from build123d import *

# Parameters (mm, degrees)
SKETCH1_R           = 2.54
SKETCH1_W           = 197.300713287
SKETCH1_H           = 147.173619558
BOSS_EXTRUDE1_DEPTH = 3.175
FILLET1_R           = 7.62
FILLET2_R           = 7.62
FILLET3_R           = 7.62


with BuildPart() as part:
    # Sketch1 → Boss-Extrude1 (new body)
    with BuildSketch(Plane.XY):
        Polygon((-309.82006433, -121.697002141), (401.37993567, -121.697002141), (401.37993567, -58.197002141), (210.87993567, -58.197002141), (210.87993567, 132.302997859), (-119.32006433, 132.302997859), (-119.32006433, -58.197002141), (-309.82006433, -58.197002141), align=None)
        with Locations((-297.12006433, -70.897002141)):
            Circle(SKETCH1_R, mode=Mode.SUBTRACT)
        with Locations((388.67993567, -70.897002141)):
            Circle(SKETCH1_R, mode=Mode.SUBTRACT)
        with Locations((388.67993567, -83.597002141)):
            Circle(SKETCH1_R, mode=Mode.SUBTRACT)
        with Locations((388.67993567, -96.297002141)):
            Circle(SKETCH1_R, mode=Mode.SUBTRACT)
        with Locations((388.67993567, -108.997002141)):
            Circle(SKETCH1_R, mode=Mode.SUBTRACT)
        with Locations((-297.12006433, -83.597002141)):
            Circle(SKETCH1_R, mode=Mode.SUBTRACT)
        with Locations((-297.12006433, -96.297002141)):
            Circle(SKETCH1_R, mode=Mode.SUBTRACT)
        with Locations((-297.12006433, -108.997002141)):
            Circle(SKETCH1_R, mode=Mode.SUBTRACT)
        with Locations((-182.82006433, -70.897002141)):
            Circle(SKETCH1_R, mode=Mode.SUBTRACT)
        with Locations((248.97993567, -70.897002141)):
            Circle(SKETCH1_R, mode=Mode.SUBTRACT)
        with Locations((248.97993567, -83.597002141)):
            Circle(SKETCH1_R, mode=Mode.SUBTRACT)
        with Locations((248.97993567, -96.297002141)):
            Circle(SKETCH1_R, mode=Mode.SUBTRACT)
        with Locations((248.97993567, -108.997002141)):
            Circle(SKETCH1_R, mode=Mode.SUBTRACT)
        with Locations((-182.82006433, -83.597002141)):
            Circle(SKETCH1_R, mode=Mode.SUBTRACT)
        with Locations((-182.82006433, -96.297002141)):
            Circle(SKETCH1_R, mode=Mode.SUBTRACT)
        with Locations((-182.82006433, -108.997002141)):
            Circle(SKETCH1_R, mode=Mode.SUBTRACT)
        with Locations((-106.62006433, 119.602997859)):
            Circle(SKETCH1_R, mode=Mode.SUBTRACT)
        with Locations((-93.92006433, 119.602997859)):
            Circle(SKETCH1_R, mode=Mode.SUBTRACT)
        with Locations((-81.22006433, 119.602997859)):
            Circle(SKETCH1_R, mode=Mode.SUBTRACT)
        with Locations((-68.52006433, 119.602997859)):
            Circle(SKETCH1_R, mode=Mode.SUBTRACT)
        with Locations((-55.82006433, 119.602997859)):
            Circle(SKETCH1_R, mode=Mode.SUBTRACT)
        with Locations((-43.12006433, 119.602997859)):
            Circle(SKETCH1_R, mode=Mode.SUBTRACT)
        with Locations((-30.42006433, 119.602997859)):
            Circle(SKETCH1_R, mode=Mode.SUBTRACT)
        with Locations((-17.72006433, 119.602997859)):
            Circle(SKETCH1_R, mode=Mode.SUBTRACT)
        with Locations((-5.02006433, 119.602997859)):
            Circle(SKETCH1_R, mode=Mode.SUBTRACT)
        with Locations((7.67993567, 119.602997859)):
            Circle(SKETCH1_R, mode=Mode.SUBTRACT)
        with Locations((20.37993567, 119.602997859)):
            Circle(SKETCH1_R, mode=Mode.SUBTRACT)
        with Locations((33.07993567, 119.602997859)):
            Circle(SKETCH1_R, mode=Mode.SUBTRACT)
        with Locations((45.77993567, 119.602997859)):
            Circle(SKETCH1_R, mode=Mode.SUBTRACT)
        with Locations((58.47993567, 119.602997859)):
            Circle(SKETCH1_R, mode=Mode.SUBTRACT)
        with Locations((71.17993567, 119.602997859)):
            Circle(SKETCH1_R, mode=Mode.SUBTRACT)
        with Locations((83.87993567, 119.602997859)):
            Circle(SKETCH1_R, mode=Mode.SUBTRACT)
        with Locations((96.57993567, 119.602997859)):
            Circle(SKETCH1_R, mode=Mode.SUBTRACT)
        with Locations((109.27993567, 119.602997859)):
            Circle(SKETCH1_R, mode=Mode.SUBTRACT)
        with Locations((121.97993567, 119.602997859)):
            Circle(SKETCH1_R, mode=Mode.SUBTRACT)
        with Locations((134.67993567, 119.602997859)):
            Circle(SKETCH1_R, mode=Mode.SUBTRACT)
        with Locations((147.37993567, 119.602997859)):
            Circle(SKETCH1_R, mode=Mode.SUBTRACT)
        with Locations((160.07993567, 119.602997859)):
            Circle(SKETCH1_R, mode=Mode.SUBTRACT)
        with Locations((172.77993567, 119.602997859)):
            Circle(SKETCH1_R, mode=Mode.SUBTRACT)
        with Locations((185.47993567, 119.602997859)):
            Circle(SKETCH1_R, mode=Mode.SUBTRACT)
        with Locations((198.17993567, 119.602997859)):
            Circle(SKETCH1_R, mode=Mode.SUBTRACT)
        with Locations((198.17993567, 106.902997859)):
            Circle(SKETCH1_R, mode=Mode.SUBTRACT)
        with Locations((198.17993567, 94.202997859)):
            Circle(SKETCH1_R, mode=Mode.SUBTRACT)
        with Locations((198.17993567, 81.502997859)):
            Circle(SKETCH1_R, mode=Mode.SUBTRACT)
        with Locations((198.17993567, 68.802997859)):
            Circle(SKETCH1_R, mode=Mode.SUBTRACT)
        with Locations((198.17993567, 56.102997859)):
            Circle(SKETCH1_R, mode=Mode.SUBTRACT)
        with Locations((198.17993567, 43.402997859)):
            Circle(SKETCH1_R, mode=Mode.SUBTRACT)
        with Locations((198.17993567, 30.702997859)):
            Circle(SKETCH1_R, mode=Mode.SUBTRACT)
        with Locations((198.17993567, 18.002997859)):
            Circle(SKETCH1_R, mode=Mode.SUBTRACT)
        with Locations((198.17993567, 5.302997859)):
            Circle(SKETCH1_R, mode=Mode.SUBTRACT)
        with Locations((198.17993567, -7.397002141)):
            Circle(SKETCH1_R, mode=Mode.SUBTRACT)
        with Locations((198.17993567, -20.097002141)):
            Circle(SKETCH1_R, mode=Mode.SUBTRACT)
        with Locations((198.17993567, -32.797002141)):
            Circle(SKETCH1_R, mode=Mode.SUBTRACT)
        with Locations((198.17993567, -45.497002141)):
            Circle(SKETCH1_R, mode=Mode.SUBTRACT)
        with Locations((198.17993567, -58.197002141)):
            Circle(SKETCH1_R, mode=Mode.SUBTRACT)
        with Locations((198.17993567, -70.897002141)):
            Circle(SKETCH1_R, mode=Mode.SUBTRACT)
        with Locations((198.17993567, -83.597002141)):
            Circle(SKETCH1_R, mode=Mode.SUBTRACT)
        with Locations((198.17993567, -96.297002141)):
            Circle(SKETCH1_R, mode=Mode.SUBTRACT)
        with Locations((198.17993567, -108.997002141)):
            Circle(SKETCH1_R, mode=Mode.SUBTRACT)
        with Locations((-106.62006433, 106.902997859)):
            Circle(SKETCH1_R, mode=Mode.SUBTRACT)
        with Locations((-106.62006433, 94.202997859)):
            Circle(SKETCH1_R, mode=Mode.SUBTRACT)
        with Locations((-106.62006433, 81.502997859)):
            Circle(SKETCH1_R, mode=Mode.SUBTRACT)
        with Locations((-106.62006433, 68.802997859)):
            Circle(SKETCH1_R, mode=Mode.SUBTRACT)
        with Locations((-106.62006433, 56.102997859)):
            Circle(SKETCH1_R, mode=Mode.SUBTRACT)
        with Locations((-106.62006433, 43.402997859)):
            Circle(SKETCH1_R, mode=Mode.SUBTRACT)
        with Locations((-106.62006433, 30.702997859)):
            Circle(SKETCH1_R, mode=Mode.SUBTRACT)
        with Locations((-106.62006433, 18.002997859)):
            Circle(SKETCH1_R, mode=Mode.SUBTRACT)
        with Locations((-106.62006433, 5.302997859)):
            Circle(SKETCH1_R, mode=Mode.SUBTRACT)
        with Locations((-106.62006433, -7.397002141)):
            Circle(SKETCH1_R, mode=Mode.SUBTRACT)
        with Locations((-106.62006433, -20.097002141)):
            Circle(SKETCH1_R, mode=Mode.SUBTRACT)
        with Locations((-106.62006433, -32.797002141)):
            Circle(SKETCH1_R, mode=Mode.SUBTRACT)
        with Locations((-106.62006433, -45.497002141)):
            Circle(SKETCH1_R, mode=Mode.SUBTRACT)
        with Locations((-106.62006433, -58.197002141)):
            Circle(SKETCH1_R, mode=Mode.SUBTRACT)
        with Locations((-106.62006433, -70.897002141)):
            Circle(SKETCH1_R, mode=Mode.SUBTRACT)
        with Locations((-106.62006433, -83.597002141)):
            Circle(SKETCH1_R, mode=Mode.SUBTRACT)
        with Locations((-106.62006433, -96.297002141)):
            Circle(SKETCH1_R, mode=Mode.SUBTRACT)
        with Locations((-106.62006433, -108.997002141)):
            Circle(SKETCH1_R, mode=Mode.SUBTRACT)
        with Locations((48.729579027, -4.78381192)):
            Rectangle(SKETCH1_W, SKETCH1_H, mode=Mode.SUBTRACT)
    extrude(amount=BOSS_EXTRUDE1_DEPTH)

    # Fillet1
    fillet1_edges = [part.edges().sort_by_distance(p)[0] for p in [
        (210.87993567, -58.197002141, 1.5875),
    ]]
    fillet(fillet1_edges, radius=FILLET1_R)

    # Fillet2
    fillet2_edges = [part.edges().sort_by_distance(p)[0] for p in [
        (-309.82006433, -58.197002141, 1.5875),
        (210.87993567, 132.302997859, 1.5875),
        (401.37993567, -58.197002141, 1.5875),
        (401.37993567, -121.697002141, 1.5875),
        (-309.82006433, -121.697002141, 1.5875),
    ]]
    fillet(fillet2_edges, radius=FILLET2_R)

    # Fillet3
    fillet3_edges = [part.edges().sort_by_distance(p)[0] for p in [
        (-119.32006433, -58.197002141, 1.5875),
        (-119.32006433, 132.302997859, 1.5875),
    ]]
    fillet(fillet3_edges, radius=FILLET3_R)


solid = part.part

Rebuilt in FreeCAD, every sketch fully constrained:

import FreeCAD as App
import Part
import Sketcher
from FreeCAD import Vector
Q = App.Units.Quantity


def edges_at(feature, points):
    """Names of the edges that pass closest to the given points."""
    edges = feature.Shape.Edges
    near = lambda p: min(range(len(edges)), key=lambda i: edges[i].distToShape(Part.Vertex(*p))[0])
    return sorted({f"Edge{near(p) + 1}" for p in points})

doc = App.newDocument("Part")
body = doc.addObject("PartDesign::Body", "Body")

sketch1 = body.newObject("Sketcher::SketchObject", "Sketch")
sketch1.AttachmentSupport = (doc.getObject("XY_Plane"), [""])
sketch1.MapMode = "FlatFace"
sketch1.addGeometry([
    Part.LineSegment(Vector(-309.820064, -121.697002, 0), Vector(401.379936, -121.697002, 0)),
    Part.LineSegment(Vector(401.379936, -121.697002, 0), Vector(401.379936, -58.197002, 0)),
    Part.LineSegment(Vector(401.379936, -58.197002, 0), Vector(210.879936, -58.197002, 0)),
    Part.LineSegment(Vector(210.879936, -58.197002, 0), Vector(210.879936, 132.302998, 0)),
    Part.LineSegment(Vector(210.879936, 132.302998, 0), Vector(-119.320064, 132.302998, 0)),
    Part.LineSegment(Vector(-119.320064, 132.302998, 0), Vector(-119.320064, -58.197002, 0)),
    Part.LineSegment(Vector(-119.320064, -58.197002, 0), Vector(-309.820064, -58.197002, 0)),
    Part.LineSegment(Vector(-309.820064, -58.197002, 0), Vector(-309.820064, -121.697002, 0)),
    Part.Circle(Vector(-297.120064, -108.997002, 0), Vector(0, 0, 1), 2.54),
    Part.Circle(Vector(-297.120064, -96.297002, 0), Vector(0, 0, 1), 2.54),
    Part.Circle(Vector(-297.120064, -83.597002, 0), Vector(0, 0, 1), 2.54),
    Part.Circle(Vector(-182.820064, -108.997002, 0), Vector(0, 0, 1), 2.54),
    Part.Circle(Vector(-182.820064, -96.297002, 0), Vector(0, 0, 1), 2.54),
    Part.Circle(Vector(-182.820064, -83.597002, 0), Vector(0, 0, 1), 2.54),
    Part.Circle(Vector(-297.120064, -70.897002, 0), Vector(0, 0, 1), 2.54),
    Part.Circle(Vector(-182.820064, -70.897002, 0), Vector(0, 0, 1), 2.54),
    Part.Circle(Vector(-106.620064, -108.997002, 0), Vector(0, 0, 1), 2.54),
    Part.Circle(Vector(-106.620064, -96.297002, 0), Vector(0, 0, 1), 2.54),
    Part.Circle(Vector(-106.620064, -83.597002, 0), Vector(0, 0, 1), 2.54),
    Part.Circle(Vector(-106.620064, -70.897002, 0), Vector(0, 0, 1), 2.54),
    Part.Circle(Vector(-106.620064, -58.197002, 0), Vector(0, 0, 1), 2.54),
    Part.Circle(Vector(-106.620064, -45.497002, 0), Vector(0, 0, 1), 2.54),
    Part.Circle(Vector(-106.620064, -32.797002, 0), Vector(0, 0, 1), 2.54),
    Part.Circle(Vector(-106.620064, -20.097002, 0), Vector(0, 0, 1), 2.54),
    Part.Circle(Vector(-106.620064, -7.397002, 0), Vector(0, 0, 1), 2.54),
    Part.Circle(Vector(198.179936, -108.997002, 0), Vector(0, 0, 1), 2.54),
    Part.Circle(Vector(198.179936, -96.297002, 0), Vector(0, 0, 1), 2.54),
    Part.Circle(Vector(198.179936, -83.597002, 0), Vector(0, 0, 1), 2.54),
    Part.Circle(Vector(198.179936, -70.897002, 0), Vector(0, 0, 1), 2.54),
    Part.Circle(Vector(198.179936, -58.197002, 0), Vector(0, 0, 1), 2.54),
    Part.Circle(Vector(248.979936, -108.997002, 0), Vector(0, 0, 1), 2.54),
    Part.Circle(Vector(248.979936, -96.297002, 0), Vector(0, 0, 1), 2.54),
    Part.Circle(Vector(248.979936, -83.597002, 0), Vector(0, 0, 1), 2.54),
    Part.Circle(Vector(388.679936, -108.997002, 0), Vector(0, 0, 1), 2.54),
    Part.Circle(Vector(388.679936, -96.297002, 0), Vector(0, 0, 1), 2.54),
    Part.Circle(Vector(388.679936, -83.597002, 0), Vector(0, 0, 1), 2.54),
    Part.Circle(Vector(248.979936, -70.897002, 0), Vector(0, 0, 1), 2.54),
    Part.Circle(Vector(388.679936, -70.897002, 0), Vector(0, 0, 1), 2.54),
    Part.Circle(Vector(198.179936, -45.497002, 0), Vector(0, 0, 1), 2.54),
    Part.Circle(Vector(198.179936, -32.797002, 0), Vector(0, 0, 1), 2.54),
    Part.LineSegment(Vector(147.379936, -78.370622, 0), Vector(-49.920778, -78.370622, 0)),
    Part.LineSegment(Vector(-49.920778, -78.370622, 0), Vector(-49.920778, 68.802998, 0)),
    Part.LineSegment(Vector(-49.920778, 68.802998, 0), Vector(147.379936, 68.802998, 0)),
    Part.LineSegment(Vector(147.379936, 68.802998, 0), Vector(147.379936, -78.370622, 0)),
    Part.Circle(Vector(198.179936, -20.097002, 0), Vector(0, 0, 1), 2.54),
    Part.Circle(Vector(198.179936, -7.397002, 0), Vector(0, 0, 1), 2.54),
    Part.Circle(Vector(-106.620064, 5.302998, 0), Vector(0, 0, 1), 2.54),
    Part.Circle(Vector(-106.620064, 18.002998, 0), Vector(0, 0, 1), 2.54),
    Part.Circle(Vector(-106.620064, 30.702998, 0), Vector(0, 0, 1), 2.54),
    Part.Circle(Vector(-106.620064, 43.402998, 0), Vector(0, 0, 1), 2.54),
    Part.Circle(Vector(-106.620064, 56.102998, 0), Vector(0, 0, 1), 2.54),
    Part.Circle(Vector(-106.620064, 68.802998, 0), Vector(0, 0, 1), 2.54),
    Part.Circle(Vector(-106.620064, 81.502998, 0), Vector(0, 0, 1), 2.54),
    Part.Circle(Vector(-106.620064, 94.202998, 0), Vector(0, 0, 1), 2.54),
    Part.Circle(Vector(-106.620064, 106.902998, 0), Vector(0, 0, 1), 2.54),
    Part.Circle(Vector(-106.620064, 119.602998, 0), Vector(0, 0, 1), 2.54),
    Part.Circle(Vector(-93.920064, 119.602998, 0), Vector(0, 0, 1), 2.54),
    Part.Circle(Vector(-81.220064, 119.602998, 0), Vector(0, 0, 1), 2.54),
    Part.Circle(Vector(-68.520064, 119.602998, 0), Vector(0, 0, 1), 2.54),
    Part.Circle(Vector(-55.820064, 119.602998, 0), Vector(0, 0, 1), 2.54),
    Part.Circle(Vector(-43.120064, 119.602998, 0), Vector(0, 0, 1), 2.54),
    Part.Circle(Vector(-30.420064, 119.602998, 0), Vector(0, 0, 1), 2.54),
    Part.Circle(Vector(-17.720064, 119.602998, 0), Vector(0, 0, 1), 2.54),
    Part.Circle(Vector(-5.020064, 119.602998, 0), Vector(0, 0, 1), 2.54),
    Part.Circle(Vector(7.679936, 119.602998, 0), Vector(0, 0, 1), 2.54),
    Part.Circle(Vector(20.379936, 119.602998, 0), Vector(0, 0, 1), 2.54),
    Part.Circle(Vector(33.079936, 119.602998, 0), Vector(0, 0, 1), 2.54),
    Part.Circle(Vector(45.779936, 119.602998, 0), Vector(0, 0, 1), 2.54),
    Part.Circle(Vector(198.179936, 5.302998, 0), Vector(0, 0, 1), 2.54),
    Part.Circle(Vector(198.179936, 18.002998, 0), Vector(0, 0, 1), 2.54),
    Part.Circle(Vector(198.179936, 30.702998, 0), Vector(0, 0, 1), 2.54),
    Part.Circle(Vector(198.179936, 43.402998, 0), Vector(0, 0, 1), 2.54),
    Part.Circle(Vector(198.179936, 56.102998, 0), Vector(0, 0, 1), 2.54),
    Part.Circle(Vector(198.179936, 68.802998, 0), Vector(0, 0, 1), 2.54),
    Part.Circle(Vector(198.179936, 81.502998, 0), Vector(0, 0, 1), 2.54),
    Part.Circle(Vector(58.479936, 119.602998, 0), Vector(0, 0, 1), 2.54),
    Part.Circle(Vector(71.179936, 119.602998, 0), Vector(0, 0, 1), 2.54),
    Part.Circle(Vector(83.879936, 119.602998, 0), Vector(0, 0, 1), 2.54),
    Part.Circle(Vector(96.579936, 119.602998, 0), Vector(0, 0, 1), 2.54),
    Part.Circle(Vector(109.279936, 119.602998, 0), Vector(0, 0, 1), 2.54),
    Part.Circle(Vector(121.979936, 119.602998, 0), Vector(0, 0, 1), 2.54),
    Part.Circle(Vector(198.179936, 94.202998, 0), Vector(0, 0, 1), 2.54),
    Part.Circle(Vector(198.179936, 106.902998, 0), Vector(0, 0, 1), 2.54),
    Part.Circle(Vector(134.679936, 119.602998, 0), Vector(0, 0, 1), 2.54),
    Part.Circle(Vector(147.379936, 119.602998, 0), Vector(0, 0, 1), 2.54),
    Part.Circle(Vector(160.079936, 119.602998, 0), Vector(0, 0, 1), 2.54),
    Part.Circle(Vector(172.779936, 119.602998, 0), Vector(0, 0, 1), 2.54),
    Part.Circle(Vector(185.479936, 119.602998, 0), Vector(0, 0, 1), 2.54),
    Part.Circle(Vector(198.179936, 119.602998, 0), Vector(0, 0, 1), 2.54),
], False)
sketch1.addConstraint([
    Sketcher.Constraint("Coincident", 0, 2, 1, 1),
    Sketcher.Constraint("Coincident", 1, 2, 2, 1),
    Sketcher.Constraint("Coincident", 2, 2, 3, 1),
    Sketcher.Constraint("Coincident", 3, 2, 4, 1),
    Sketcher.Constraint("Coincident", 4, 2, 5, 1),
    Sketcher.Constraint("Coincident", 5, 2, 6, 1),
    Sketcher.Constraint("Coincident", 6, 2, 7, 1),
    Sketcher.Constraint("Coincident", 7, 2, 0, 1),
    Sketcher.Constraint("Coincident", 40, 2, 41, 1),
    Sketcher.Constraint("Coincident", 41, 2, 42, 1),
    Sketcher.Constraint("Coincident", 42, 2, 43, 1),
    Sketcher.Constraint("Coincident", 43, 2, 40, 1),
    Sketcher.Constraint("Horizontal", 0),
    Sketcher.Constraint("Vertical", 1),
    Sketcher.Constraint("Horizontal", 2),
    Sketcher.Constraint("Vertical", 3),
    Sketcher.Constraint("Horizontal", 4),
    Sketcher.Constraint("Vertical", 5),
    Sketcher.Constraint("Horizontal", 6),
    Sketcher.Constraint("Vertical", 7),
    Sketcher.Constraint("Horizontal", 40),
    Sketcher.Constraint("Vertical", 41),
    Sketcher.Constraint("Horizontal", 42),
    Sketcher.Constraint("Vertical", 43),
    Sketcher.Constraint("Equal", 8, 9),
    Sketcher.Constraint("Equal", 9, 10),
    Sketcher.Constraint("Equal", 10, 11),
    Sketcher.Constraint("Equal", 11, 12),
    Sketcher.Constraint("Equal", 12, 13),
    Sketcher.Constraint("Equal", 13, 14),
    Sketcher.Constraint("Equal", 14, 15),
    Sketcher.Constraint("Equal", 15, 16),
    Sketcher.Constraint("Equal", 16, 17),
    Sketcher.Constraint("Equal", 17, 18),
    Sketcher.Constraint("Equal", 18, 19),
    Sketcher.Constraint("Equal", 19, 20),
    Sketcher.Constraint("Equal", 20, 21),
    Sketcher.Constraint("Equal", 21, 22),
    Sketcher.Constraint("Equal", 22, 23),
    Sketcher.Constraint("Equal", 23, 24),
    Sketcher.Constraint("Equal", 24, 25),
    Sketcher.Constraint("Equal", 25, 26),
    Sketcher.Constraint("Equal", 26, 27),
    Sketcher.Constraint("Equal", 27, 28),
    Sketcher.Constraint("Equal", 28, 29),
    Sketcher.Constraint("Equal", 29, 30),
    Sketcher.Constraint("Equal", 30, 31),
    Sketcher.Constraint("Equal", 31, 32),
    Sketcher.Constraint("Equal", 32, 33),
    Sketcher.Constraint("Equal", 33, 34),
    Sketcher.Constraint("Equal", 34, 35),
    Sketcher.Constraint("Equal", 35, 36),
    Sketcher.Constraint("Equal", 36, 37),
    Sketcher.Constraint("Equal", 37, 38),
    Sketcher.Constraint("Equal", 38, 39),
    Sketcher.Constraint("Equal", 39, 44),
    Sketcher.Constraint("Equal", 44, 45),
    Sketcher.Constraint("Equal", 45, 46),
    Sketcher.Constraint("Equal", 46, 47),
    Sketcher.Constraint("Equal", 47, 48),
    Sketcher.Constraint("Equal", 48, 49),
    Sketcher.Constraint("Equal", 49, 50),
    Sketcher.Constraint("Equal", 50, 51),
    Sketcher.Constraint("Equal", 51, 52),
    Sketcher.Constraint("Equal", 52, 53),
    Sketcher.Constraint("Equal", 53, 54),
    Sketcher.Constraint("Equal", 54, 55),
    Sketcher.Constraint("Equal", 55, 56),
    Sketcher.Constraint("Equal", 56, 57),
    Sketcher.Constraint("Equal", 57, 58),
    Sketcher.Constraint("Equal", 58, 59),
    Sketcher.Constraint("Equal", 59, 60),
    Sketcher.Constraint("Equal", 60, 61),
    Sketcher.Constraint("Equal", 61, 62),
    Sketcher.Constraint("Equal", 62, 63),
    Sketcher.Constraint("Equal", 63, 64),
    Sketcher.Constraint("Equal", 64, 65),
    Sketcher.Constraint("Equal", 65, 66),
    Sketcher.Constraint("Equal", 66, 67),
    Sketcher.Constraint("Equal", 67, 68),
    Sketcher.Constraint("Equal", 68, 69),
    Sketcher.Constraint("Equal", 69, 70),
    Sketcher.Constraint("Equal", 70, 71),
    Sketcher.Constraint("Equal", 71, 72),
    Sketcher.Constraint("Equal", 72, 73),
    Sketcher.Constraint("Equal", 73, 74),
    Sketcher.Constraint("Equal", 74, 75),
    Sketcher.Constraint("Equal", 75, 76),
    Sketcher.Constraint("Equal", 76, 77),
    Sketcher.Constraint("Equal", 77, 78),
    Sketcher.Constraint("Equal", 78, 79),
    Sketcher.Constraint("Equal", 79, 80),
    Sketcher.Constraint("Equal", 80, 81),
    Sketcher.Constraint("Equal", 81, 82),
    Sketcher.Constraint("Equal", 82, 83),
    Sketcher.Constraint("Equal", 83, 84),
    Sketcher.Constraint("Equal", 84, 85),
    Sketcher.Constraint("Equal", 85, 86),
    Sketcher.Constraint("Equal", 86, 87),
    Sketcher.Constraint("Equal", 87, 88),
    Sketcher.Constraint("Horizontal", 8, 3, 11, 3),
    Sketcher.Constraint("Horizontal", 9, 3, 12, 3),
    Sketcher.Constraint("Horizontal", 10, 3, 13, 3),
    Sketcher.Constraint("Horizontal", 14, 3, 15, 3),
    Sketcher.Constraint("Horizontal", 11, 3, 16, 3),
    Sketcher.Constraint("Horizontal", 12, 3, 17, 3),
    Sketcher.Constraint("Horizontal", 13, 3, 18, 3),
    Sketcher.Constraint("Horizontal", 15, 3, 19, 3),
    Sketcher.Constraint("Horizontal", 16, 3, 25, 3),
    Sketcher.Constraint("Horizontal", 17, 3, 26, 3),
    Sketcher.Constraint("Horizontal", 18, 3, 27, 3),
    Sketcher.Constraint("Horizontal", 19, 3, 28, 3),
    Sketcher.Constraint("Horizontal", 20, 3, 29, 3),
    Sketcher.Constraint("Horizontal", 25, 3, 30, 3),
    Sketcher.Constraint("Horizontal", 26, 3, 31, 3),
    Sketcher.Constraint("Horizontal", 27, 3, 32, 3),
    Sketcher.Constraint("Horizontal", 30, 3, 33, 3),
    Sketcher.Constraint("Horizontal", 31, 3, 34, 3),
    Sketcher.Constraint("Horizontal", 32, 3, 35, 3),
    Sketcher.Constraint("Horizontal", 28, 3, 36, 3),
    Sketcher.Constraint("Horizontal", 36, 3, 37, 3),
    Sketcher.Constraint("Horizontal", 21, 3, 38, 3),
    Sketcher.Constraint("Horizontal", 22, 3, 39, 3),
    Sketcher.Constraint("Horizontal", 23, 3, 44, 3),
    Sketcher.Constraint("Horizontal", 24, 3, 45, 3),
    Sketcher.Constraint("Horizontal", 55, 3, 56, 3),
    Sketcher.Constraint("Horizontal", 56, 3, 57, 3),
    Sketcher.Constraint("Horizontal", 57, 3, 58, 3),
    Sketcher.Constraint("Horizontal", 58, 3, 59, 3),
    Sketcher.Constraint("Horizontal", 59, 3, 60, 3),
    Sketcher.Constraint("Horizontal", 60, 3, 61, 3),
    Sketcher.Constraint("Horizontal", 61, 3, 62, 3),
    Sketcher.Constraint("Horizontal", 62, 3, 63, 3),
    Sketcher.Constraint("Horizontal", 63, 3, 64, 3),
    Sketcher.Constraint("Horizontal", 64, 3, 65, 3),
    Sketcher.Constraint("Horizontal", 65, 3, 66, 3),
    Sketcher.Constraint("Horizontal", 66, 3, 67, 3),
    Sketcher.Constraint("Horizontal", 46, 3, 68, 3),
    Sketcher.Constraint("Horizontal", 47, 3, 69, 3),
    Sketcher.Constraint("Horizontal", 48, 3, 70, 3),
    Sketcher.Constraint("Horizontal", 49, 3, 71, 3),
    Sketcher.Constraint("Horizontal", 50, 3, 72, 3),
    Sketcher.Constraint("Horizontal", 51, 3, 73, 3),
    Sketcher.Constraint("Horizontal", 52, 3, 74, 3),
    Sketcher.Constraint("Horizontal", 67, 3, 75, 3),
    Sketcher.Constraint("Horizontal", 75, 3, 76, 3),
    Sketcher.Constraint("Horizontal", 76, 3, 77, 3),
    Sketcher.Constraint("Horizontal", 77, 3, 78, 3),
    Sketcher.Constraint("Horizontal", 78, 3, 79, 3),
    Sketcher.Constraint("Horizontal", 79, 3, 80, 3),
    Sketcher.Constraint("Horizontal", 53, 3, 81, 3),
    Sketcher.Constraint("Horizontal", 54, 3, 82, 3),
    Sketcher.Constraint("Horizontal", 80, 3, 83, 3),
    Sketcher.Constraint("Horizontal", 83, 3, 84, 3),
    Sketcher.Constraint("Horizontal", 84, 3, 85, 3),
    Sketcher.Constraint("Horizontal", 85, 3, 86, 3),
    Sketcher.Constraint("Horizontal", 86, 3, 87, 3),
    Sketcher.Constraint("Horizontal", 87, 3, 88, 3),
    Sketcher.Constraint("Horizontal", 29, 3, 1, 2),
    Sketcher.Constraint("Horizontal", 2, 2, 5, 2),
    Sketcher.Constraint("Horizontal", 73, 3, 41, 2),
    Sketcher.Constraint("Vertical", 8, 3, 9, 3),
    Sketcher.Constraint("Vertical", 9, 3, 10, 3),
    Sketcher.Constraint("Vertical", 11, 3, 12, 3),
    Sketcher.Constraint("Vertical", 12, 3, 13, 3),
    Sketcher.Constraint("Vertical", 10, 3, 14, 3),
    Sketcher.Constraint("Vertical", 13, 3, 15, 3),
    Sketcher.Constraint("Vertical", 16, 3, 17, 3),
    Sketcher.Constraint("Vertical", 17, 3, 18, 3),
    Sketcher.Constraint("Vertical", 18, 3, 19, 3),
    Sketcher.Constraint("Vertical", 19, 3, 20, 3),
    Sketcher.Constraint("Vertical", 20, 3, 21, 3),
    Sketcher.Constraint("Vertical", 21, 3, 22, 3),
    Sketcher.Constraint("Vertical", 22, 3, 23, 3),
    Sketcher.Constraint("Vertical", 23, 3, 24, 3),
    Sketcher.Constraint("Vertical", 25, 3, 26, 3),
    Sketcher.Constraint("Vertical", 26, 3, 27, 3),
    Sketcher.Constraint("Vertical", 27, 3, 28, 3),
    Sketcher.Constraint("Vertical", 28, 3, 29, 3),
    Sketcher.Constraint("Vertical", 30, 3, 31, 3),
    Sketcher.Constraint("Vertical", 31, 3, 32, 3),
    Sketcher.Constraint("Vertical", 33, 3, 34, 3),
    Sketcher.Constraint("Vertical", 34, 3, 35, 3),
    Sketcher.Constraint("Vertical", 32, 3, 36, 3),
    Sketcher.Constraint("Vertical", 35, 3, 37, 3),
    Sketcher.Constraint("Vertical", 29, 3, 38, 3),
    Sketcher.Constraint("Vertical", 38, 3, 39, 3),
    Sketcher.Constraint("Vertical", 39, 3, 44, 3),
    Sketcher.Constraint("Vertical", 44, 3, 45, 3),
    Sketcher.Constraint("Vertical", 24, 3, 46, 3),
    Sketcher.Constraint("Vertical", 46, 3, 47, 3),
    Sketcher.Constraint("Vertical", 47, 3, 48, 3),
    Sketcher.Constraint("Vertical", 48, 3, 49, 3),
    Sketcher.Constraint("Vertical", 49, 3, 50, 3),
    Sketcher.Constraint("Vertical", 50, 3, 51, 3),
    Sketcher.Constraint("Vertical", 51, 3, 52, 3),
    Sketcher.Constraint("Vertical", 52, 3, 53, 3),
    Sketcher.Constraint("Vertical", 53, 3, 54, 3),
    Sketcher.Constraint("Vertical", 54, 3, 55, 3),
    Sketcher.Constraint("Vertical", 45, 3, 68, 3),
    Sketcher.Constraint("Vertical", 68, 3, 69, 3),
    Sketcher.Constraint("Vertical", 69, 3, 70, 3),
    Sketcher.Constraint("Vertical", 70, 3, 71, 3),
    Sketcher.Constraint("Vertical", 71, 3, 72, 3),
    Sketcher.Constraint("Vertical", 72, 3, 73, 3),
    Sketcher.Constraint("Vertical", 73, 3, 74, 3),
    Sketcher.Constraint("Vertical", 74, 3, 81, 3),
    Sketcher.Constraint("Vertical", 81, 3, 82, 3),
    Sketcher.Constraint("Vertical", 82, 3, 88, 3),
    Sketcher.Constraint("Vertical", 84, 3, 42, 2),
    Sketcher.Constraint("Equal", 2, 6),
    Sketcher.Constraint("Equal", 6, 3),
    Sketcher.Constraint("Diameter", 8, Q("0.2 in")),
    Sketcher.Constraint("DistanceX", 0, 1, 0, 2, Q("28 in")),
    Sketcher.Constraint("DistanceX", 4, 2, 4, 1, Q("13 in")),
    Sketcher.Constraint("DistanceY", 1, 1, 1, 2, Q("2.5 in")),
    Sketcher.Constraint("DistanceY", 41, 1, 41, 2, 147.17362),
    Sketcher.Constraint("DistanceX", 40, 2, 40, 1, 197.300713),
    Sketcher.Constraint("DistanceY", 40, 2, -1, 1, 78.370622),
    Sketcher.Constraint("DistanceX", 8, 3, -1, 1, 297.120064),
    Sketcher.Constraint("DistanceY", 8, 3, -1, 1, 108.997002),
    Sketcher.Constraint("DistanceY", 9, 3, -1, 1, 96.297002),
    Sketcher.Constraint("DistanceY", 10, 3, -1, 1, 83.597002),
    Sketcher.Constraint("DistanceX", 11, 3, -1, 1, 182.820064),
    Sketcher.Constraint("DistanceY", 14, 3, -1, 1, 70.897002),
    Sketcher.Constraint("DistanceX", 16, 3, -1, 1, 106.620064),
    Sketcher.Constraint("DistanceY", 20, 3, -1, 1, 58.197002),
    Sketcher.Constraint("DistanceY", 21, 3, -1, 1, 45.497002),
    Sketcher.Constraint("DistanceY", 22, 3, -1, 1, 32.797002),
    Sketcher.Constraint("DistanceY", 23, 3, -1, 1, 20.097002),
    Sketcher.Constraint("DistanceY", 24, 3, -1, 1, 7.397002),
    Sketcher.Constraint("DistanceX", -1, 1, 25, 3, 198.179936),
    Sketcher.Constraint("DistanceX", -1, 1, 30, 3, 248.979936),
    Sketcher.Constraint("DistanceX", -1, 1, 33, 3, 388.679936),
    Sketcher.Constraint("DistanceY", -1, 1, 46, 3, 5.302998),
    Sketcher.Constraint("DistanceY", -1, 1, 47, 3, 18.002998),
    Sketcher.Constraint("DistanceY", -1, 1, 48, 3, 30.702998),
    Sketcher.Constraint("DistanceY", -1, 1, 49, 3, 43.402998),
    Sketcher.Constraint("DistanceY", -1, 1, 50, 3, 56.102998),
    Sketcher.Constraint("DistanceY", -1, 1, 52, 3, 81.502998),
    Sketcher.Constraint("DistanceY", -1, 1, 53, 3, 94.202998),
    Sketcher.Constraint("DistanceY", -1, 1, 54, 3, 106.902998),
    Sketcher.Constraint("DistanceY", -1, 1, 55, 3, 119.602998),
    Sketcher.Constraint("DistanceX", 56, 3, -1, 1, 93.920064),
    Sketcher.Constraint("DistanceX", 57, 3, -1, 1, 81.220064),
    Sketcher.Constraint("DistanceX", 58, 3, -1, 1, 68.520064),
    Sketcher.Constraint("DistanceX", 59, 3, -1, 1, 55.820064),
    Sketcher.Constraint("DistanceX", 60, 3, -1, 1, 43.120064),
    Sketcher.Constraint("DistanceX", 61, 3, -1, 1, 30.420064),
    Sketcher.Constraint("DistanceX", 62, 3, -1, 1, 17.720064),
    Sketcher.Constraint("DistanceX", 63, 3, -1, 1, 5.020064),
    Sketcher.Constraint("DistanceX", -1, 1, 64, 3, 7.679936),
    Sketcher.Constraint("DistanceX", -1, 1, 65, 3, 20.379936),
    Sketcher.Constraint("DistanceX", -1, 1, 66, 3, 33.079936),
    Sketcher.Constraint("DistanceX", -1, 1, 67, 3, 45.779936),
    Sketcher.Constraint("DistanceX", -1, 1, 75, 3, 58.479936),
    Sketcher.Constraint("DistanceX", -1, 1, 76, 3, 71.179936),
    Sketcher.Constraint("DistanceX", -1, 1, 77, 3, 83.879936),
    Sketcher.Constraint("DistanceX", -1, 1, 78, 3, 96.579936),
    Sketcher.Constraint("DistanceX", -1, 1, 79, 3, 109.279936),
    Sketcher.Constraint("DistanceX", -1, 1, 80, 3, 121.979936),
    Sketcher.Constraint("DistanceX", -1, 1, 83, 3, 134.679936),
    Sketcher.Constraint("DistanceX", -1, 1, 84, 3, 147.379936),
    Sketcher.Constraint("DistanceX", -1, 1, 85, 3, 160.079936),
    Sketcher.Constraint("DistanceX", -1, 1, 86, 3, 172.779936),
    Sketcher.Constraint("DistanceX", -1, 1, 87, 3, 185.479936),
    Sketcher.Constraint("DistanceX", -1, 1, 0, 2, 401.379936),
])
pad1 = body.newObject("PartDesign::Pad", "Pad")
pad1.Profile = sketch1
pad1.Length = Q("0.125 in")
doc.recompute()

fillet = body.newObject("PartDesign::Fillet", "Fillet")
fillet.Base = (pad1, edges_at(pad1, [(210.88, -58.197, 1.587)]))
fillet.Radius = Q("0.3 in")
doc.recompute()

fillet2 = body.newObject("PartDesign::Fillet", "Fillet001")
fillet2.Base = (fillet, edges_at(fillet, [
    (-309.82, -58.197, 1.587),
    (210.88, 132.303, 1.587),
    (401.38, -58.197, 1.587),
    (401.38, -121.697, 1.587),
    (-309.82, -121.697, 1.587),
]))
fillet2.Radius = Q("0.3 in")
doc.recompute()

fillet3 = body.newObject("PartDesign::Fillet", "Fillet002")
fillet3.Base = (fillet2, edges_at(fillet2, [(-119.32, -58.197, 1.587), (-119.32, 132.303, 1.587)]))
fillet3.Radius = Q("0.3 in")

doc.recompute()
